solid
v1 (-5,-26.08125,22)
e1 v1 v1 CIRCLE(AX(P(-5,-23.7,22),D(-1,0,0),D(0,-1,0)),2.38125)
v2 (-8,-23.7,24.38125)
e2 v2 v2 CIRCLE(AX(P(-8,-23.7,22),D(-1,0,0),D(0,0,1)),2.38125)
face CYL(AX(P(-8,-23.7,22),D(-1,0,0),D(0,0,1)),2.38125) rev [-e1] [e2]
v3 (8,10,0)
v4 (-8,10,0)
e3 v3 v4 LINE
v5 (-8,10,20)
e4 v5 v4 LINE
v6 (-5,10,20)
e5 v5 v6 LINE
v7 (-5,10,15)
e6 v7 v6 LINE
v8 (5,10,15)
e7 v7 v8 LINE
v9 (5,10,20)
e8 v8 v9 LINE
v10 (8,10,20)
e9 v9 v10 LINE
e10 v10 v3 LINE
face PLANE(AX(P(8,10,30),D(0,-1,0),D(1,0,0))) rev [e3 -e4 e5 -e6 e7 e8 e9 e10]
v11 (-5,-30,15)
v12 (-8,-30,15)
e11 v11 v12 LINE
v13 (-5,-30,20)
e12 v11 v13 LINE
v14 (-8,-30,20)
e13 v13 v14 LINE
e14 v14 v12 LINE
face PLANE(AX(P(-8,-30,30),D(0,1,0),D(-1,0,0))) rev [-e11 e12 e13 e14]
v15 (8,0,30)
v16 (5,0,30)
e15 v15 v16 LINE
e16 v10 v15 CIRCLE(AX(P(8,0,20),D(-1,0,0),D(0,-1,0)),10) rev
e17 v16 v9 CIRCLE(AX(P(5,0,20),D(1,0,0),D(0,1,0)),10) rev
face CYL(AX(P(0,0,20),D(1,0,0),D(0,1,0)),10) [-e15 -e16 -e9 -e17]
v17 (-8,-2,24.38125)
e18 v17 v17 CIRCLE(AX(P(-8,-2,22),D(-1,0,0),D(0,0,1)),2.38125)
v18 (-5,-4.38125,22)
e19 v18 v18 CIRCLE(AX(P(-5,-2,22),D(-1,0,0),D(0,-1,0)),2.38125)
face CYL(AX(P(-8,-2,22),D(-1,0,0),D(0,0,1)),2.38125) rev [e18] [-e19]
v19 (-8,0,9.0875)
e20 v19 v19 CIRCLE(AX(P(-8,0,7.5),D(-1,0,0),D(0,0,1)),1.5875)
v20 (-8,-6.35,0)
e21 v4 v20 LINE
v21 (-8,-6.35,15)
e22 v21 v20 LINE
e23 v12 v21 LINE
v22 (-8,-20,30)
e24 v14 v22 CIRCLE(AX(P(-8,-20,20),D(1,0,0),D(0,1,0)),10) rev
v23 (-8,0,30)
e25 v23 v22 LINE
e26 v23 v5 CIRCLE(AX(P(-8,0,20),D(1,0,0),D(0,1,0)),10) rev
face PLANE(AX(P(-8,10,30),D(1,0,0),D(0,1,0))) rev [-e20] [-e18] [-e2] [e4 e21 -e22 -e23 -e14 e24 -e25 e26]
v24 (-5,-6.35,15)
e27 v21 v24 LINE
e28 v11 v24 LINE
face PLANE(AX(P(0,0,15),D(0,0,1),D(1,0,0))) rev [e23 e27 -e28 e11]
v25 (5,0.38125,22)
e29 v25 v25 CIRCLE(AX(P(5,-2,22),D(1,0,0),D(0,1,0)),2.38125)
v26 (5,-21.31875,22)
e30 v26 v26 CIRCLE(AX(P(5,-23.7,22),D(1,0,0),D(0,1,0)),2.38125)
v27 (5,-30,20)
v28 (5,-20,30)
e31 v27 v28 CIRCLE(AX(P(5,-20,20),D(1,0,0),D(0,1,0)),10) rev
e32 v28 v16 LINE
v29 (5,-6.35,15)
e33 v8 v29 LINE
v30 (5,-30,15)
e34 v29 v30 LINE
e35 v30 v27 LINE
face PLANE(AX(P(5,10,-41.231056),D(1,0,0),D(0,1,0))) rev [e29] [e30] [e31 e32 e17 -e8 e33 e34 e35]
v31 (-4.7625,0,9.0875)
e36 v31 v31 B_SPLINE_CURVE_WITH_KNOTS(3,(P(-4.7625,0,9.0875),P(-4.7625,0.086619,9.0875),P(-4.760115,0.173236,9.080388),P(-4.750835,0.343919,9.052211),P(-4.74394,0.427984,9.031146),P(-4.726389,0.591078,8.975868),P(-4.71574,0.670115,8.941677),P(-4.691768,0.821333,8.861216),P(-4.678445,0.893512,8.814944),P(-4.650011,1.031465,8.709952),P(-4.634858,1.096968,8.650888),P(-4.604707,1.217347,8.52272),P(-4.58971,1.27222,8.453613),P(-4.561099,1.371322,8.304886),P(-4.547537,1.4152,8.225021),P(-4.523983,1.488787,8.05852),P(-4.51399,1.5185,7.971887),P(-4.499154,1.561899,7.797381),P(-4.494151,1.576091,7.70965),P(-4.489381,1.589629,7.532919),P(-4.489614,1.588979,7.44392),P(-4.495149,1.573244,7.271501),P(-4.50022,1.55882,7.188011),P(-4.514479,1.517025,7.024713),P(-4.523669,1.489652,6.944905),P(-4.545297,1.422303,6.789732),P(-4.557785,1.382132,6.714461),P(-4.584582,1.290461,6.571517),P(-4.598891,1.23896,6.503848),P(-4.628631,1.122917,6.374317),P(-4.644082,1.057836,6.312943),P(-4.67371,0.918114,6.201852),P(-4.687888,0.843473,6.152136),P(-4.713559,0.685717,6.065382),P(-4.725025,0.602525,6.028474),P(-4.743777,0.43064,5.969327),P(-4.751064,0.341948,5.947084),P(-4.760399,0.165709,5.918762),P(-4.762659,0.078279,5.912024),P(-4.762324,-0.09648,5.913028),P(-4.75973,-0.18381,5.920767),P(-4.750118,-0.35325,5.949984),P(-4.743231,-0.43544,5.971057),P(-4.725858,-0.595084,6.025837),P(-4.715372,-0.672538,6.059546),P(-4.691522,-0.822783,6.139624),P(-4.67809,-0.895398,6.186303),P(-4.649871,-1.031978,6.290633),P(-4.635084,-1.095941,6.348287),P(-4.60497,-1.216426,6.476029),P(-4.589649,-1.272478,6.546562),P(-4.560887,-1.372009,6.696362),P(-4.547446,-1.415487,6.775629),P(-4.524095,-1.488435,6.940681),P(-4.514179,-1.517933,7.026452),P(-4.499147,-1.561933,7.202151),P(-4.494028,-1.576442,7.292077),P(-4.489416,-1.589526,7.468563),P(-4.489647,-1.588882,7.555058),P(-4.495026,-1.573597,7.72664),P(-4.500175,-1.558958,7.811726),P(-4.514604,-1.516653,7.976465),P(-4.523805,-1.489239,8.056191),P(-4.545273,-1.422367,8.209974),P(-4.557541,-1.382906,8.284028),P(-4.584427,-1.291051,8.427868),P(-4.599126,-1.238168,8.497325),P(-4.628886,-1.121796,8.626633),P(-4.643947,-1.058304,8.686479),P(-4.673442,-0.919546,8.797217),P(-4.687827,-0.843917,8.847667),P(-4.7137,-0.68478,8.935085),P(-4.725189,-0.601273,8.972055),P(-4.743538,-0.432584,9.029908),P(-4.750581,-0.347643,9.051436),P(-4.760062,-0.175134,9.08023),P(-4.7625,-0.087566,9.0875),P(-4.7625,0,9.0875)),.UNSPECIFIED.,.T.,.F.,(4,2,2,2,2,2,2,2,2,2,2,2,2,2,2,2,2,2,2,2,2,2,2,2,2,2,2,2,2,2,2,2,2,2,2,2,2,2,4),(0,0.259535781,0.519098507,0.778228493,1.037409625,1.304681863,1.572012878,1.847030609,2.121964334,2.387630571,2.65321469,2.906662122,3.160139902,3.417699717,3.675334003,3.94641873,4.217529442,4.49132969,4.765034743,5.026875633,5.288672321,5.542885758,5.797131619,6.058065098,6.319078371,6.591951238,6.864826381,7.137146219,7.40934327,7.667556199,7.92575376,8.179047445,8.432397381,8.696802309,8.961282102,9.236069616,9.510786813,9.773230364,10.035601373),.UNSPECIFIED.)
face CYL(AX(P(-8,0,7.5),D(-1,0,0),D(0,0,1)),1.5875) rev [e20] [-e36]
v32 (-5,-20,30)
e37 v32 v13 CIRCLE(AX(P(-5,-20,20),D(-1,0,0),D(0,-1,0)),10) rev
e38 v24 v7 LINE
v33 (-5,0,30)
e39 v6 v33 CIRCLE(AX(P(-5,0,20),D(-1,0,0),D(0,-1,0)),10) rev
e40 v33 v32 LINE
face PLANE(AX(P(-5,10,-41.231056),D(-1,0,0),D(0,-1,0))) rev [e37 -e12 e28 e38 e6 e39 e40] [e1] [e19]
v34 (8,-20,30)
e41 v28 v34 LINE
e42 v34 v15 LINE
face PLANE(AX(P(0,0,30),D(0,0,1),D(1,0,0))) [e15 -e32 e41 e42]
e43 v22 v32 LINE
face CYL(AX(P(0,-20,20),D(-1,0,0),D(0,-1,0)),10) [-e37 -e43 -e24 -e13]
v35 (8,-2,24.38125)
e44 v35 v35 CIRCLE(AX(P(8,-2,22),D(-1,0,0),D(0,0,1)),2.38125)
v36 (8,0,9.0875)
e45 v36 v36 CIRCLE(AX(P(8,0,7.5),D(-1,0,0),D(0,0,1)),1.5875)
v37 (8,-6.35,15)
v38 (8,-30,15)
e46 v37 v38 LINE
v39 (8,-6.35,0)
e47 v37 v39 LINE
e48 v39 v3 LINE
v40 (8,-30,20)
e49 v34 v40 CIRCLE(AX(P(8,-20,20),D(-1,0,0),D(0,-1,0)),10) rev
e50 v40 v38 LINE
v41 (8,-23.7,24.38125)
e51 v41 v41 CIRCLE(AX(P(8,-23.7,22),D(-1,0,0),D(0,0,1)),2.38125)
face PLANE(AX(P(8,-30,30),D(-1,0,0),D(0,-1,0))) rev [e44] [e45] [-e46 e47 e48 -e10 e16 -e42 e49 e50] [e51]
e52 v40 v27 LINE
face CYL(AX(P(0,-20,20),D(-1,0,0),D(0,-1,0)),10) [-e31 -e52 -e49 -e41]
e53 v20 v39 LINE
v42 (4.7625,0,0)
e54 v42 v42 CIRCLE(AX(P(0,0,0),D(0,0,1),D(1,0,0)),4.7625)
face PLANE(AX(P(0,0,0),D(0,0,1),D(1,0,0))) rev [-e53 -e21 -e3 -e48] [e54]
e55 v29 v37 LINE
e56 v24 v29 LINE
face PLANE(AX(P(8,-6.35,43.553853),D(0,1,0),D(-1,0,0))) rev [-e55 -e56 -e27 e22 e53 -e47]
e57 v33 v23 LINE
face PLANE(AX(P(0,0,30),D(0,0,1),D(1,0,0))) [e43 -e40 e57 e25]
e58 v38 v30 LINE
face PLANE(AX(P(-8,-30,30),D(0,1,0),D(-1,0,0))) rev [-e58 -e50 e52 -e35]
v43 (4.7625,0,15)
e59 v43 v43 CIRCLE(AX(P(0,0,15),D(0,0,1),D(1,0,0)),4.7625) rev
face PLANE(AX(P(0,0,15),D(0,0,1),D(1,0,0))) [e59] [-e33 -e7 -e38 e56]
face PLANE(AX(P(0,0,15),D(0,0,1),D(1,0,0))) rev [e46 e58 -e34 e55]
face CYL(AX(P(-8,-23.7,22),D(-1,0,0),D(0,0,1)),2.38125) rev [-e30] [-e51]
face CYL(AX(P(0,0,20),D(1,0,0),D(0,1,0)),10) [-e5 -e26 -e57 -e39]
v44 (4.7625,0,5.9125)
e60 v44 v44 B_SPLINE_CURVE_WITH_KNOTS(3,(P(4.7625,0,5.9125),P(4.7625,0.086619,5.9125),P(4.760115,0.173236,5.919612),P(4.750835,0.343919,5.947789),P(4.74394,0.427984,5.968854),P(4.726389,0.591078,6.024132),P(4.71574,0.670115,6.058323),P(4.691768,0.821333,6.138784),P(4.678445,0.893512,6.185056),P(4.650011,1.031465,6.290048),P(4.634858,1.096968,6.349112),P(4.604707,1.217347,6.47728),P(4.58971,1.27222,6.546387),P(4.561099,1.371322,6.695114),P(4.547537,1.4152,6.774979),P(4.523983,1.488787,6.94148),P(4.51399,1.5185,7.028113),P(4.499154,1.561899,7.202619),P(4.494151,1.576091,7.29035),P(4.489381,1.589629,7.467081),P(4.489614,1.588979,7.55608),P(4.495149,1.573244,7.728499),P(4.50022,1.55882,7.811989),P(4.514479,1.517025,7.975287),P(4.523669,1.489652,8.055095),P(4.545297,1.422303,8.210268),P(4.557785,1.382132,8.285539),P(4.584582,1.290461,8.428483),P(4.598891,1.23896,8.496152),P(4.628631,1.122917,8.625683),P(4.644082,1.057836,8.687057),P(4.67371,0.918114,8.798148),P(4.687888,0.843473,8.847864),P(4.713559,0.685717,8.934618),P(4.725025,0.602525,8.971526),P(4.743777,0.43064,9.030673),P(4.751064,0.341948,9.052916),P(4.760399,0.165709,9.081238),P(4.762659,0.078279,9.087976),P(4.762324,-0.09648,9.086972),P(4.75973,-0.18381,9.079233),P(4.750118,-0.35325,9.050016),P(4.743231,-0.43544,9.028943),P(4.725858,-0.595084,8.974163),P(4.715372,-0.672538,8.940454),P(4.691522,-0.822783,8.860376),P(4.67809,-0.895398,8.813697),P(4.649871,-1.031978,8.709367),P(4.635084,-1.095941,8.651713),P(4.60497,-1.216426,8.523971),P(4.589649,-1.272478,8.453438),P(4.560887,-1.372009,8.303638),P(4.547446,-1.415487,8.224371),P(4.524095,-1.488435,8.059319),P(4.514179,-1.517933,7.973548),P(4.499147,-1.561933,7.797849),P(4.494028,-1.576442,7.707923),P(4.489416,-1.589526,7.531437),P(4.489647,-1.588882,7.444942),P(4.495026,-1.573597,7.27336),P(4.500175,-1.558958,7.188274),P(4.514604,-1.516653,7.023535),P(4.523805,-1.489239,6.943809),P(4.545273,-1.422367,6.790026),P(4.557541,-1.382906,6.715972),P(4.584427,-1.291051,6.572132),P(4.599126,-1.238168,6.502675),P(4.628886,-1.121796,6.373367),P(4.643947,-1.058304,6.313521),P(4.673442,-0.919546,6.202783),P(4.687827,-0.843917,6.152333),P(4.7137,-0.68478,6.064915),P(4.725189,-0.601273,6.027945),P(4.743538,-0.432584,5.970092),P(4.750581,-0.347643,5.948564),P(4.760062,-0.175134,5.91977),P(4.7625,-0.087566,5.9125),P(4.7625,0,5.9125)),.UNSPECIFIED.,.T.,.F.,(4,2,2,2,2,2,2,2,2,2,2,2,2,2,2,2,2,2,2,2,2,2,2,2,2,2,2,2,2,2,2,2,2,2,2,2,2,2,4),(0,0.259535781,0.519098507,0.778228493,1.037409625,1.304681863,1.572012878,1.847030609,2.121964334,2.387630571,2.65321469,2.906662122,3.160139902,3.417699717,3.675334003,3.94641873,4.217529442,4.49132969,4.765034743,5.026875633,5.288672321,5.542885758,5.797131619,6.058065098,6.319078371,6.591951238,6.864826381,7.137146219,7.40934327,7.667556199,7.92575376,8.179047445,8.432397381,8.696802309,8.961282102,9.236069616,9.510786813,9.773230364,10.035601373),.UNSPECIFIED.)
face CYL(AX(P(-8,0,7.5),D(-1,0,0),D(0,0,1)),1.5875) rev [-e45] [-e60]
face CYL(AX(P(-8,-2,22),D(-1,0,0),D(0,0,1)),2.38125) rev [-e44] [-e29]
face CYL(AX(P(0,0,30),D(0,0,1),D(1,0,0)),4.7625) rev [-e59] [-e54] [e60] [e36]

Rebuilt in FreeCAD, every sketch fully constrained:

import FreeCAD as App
import Part
import Sketcher

V = App.Vector


def edges_at(feature, points):
    """Names of the edges that pass closest to the given points."""
    edges = feature.Shape.Edges
    near = lambda p: min(range(len(edges)), key=lambda i: edges[i].distToShape(Part.Vertex(*p))[0])
    return sorted({f"Edge{near(p) + 1}" for p in points})


def add_polygon(sketch, points):
    """Adds a closed chain of lines whose ends are joined by coincident constraints."""
    first, n = sketch.GeometryCount, len(points)
    for a, b in zip(points, points[1:] + points[:1]):
        sketch.addGeometry(Part.LineSegment(App.Vector(*a, 0), App.Vector(*b, 0)), False)
    for i in range(n):
        sketch.addConstraint(Sketcher.Constraint("Coincident", first + i, 2, first + (i + 1) % n, 1))

doc = App.newDocument("Part")
body = doc.addObject("PartDesign::Body", "Body")

# Sketch on XY plane
sketch1 = body.newObject("Sketcher::SketchObject", "Sketch")
sketch1.AttachmentSupport = (doc.getObject("XY_Plane"), [""])
sketch1.MapMode = "FlatFace"
add_polygon(sketch1, [(-8, 10), (-8, -30), (8, -30), (8, 10)])  # lines 0-3
sketch1.addConstraint(Sketcher.Constraint("Vertical", 0))
sketch1.addConstraint(Sketcher.Constraint("Horizontal", 1))
sketch1.addConstraint(Sketcher.Constraint("Vertical", 2))
sketch1.addConstraint(Sketcher.Constraint("Horizontal", 3))
sketch1.addConstraint(Sketcher.Constraint("DistanceX", 1, 1, 1, 2, 16.0))
sketch1.addConstraint(Sketcher.Constraint("DistanceY", 0, 2, 0, 1, 40.0))
sketch1.addConstraint(Sketcher.Constraint("DistanceX", 0, 2, -1, 1, 8.0))
sketch1.addConstraint(Sketcher.Constraint("DistanceY", 0, 2, -1, 1, 30.0))
pad1 = body.newObject("PartDesign::Pad", "Pad")
pad1.Profile = sketch1
pad1.Length = 30

# Sketch on XY plane
sketch2 = body.newObject("Sketcher::SketchObject", "Sketch001")
sketch2.AttachmentSupport = (doc.getObject("XY_Plane"), [""])
sketch2.MapMode = "FlatFace"
sketch2.AttachmentOffset = App.Placement(V(0, 0, 30), App.Rotation())
sketch2.addGeometry(Part.Circle(V(0, 0, 0), V(0, 0, 1), 4.8), False)
sketch2.addConstraint(Sketcher.Constraint("Coincident", 0, 3, -1, 1))
sketch2.addConstraint(Sketcher.Constraint("Diameter", 0, 9.525))
doc.recompute()
hole = body.newObject("PartDesign::Hole", "Hole")
hole.Profile = sketch2
hole.ThreadType = "None"
hole.Diameter = 9.525
hole.DepthType = "ThroughAll"

# Sketch on YZ plane
sketch3 = body.newObject("Sketcher::SketchObject", "Sketch002")
sketch3.AttachmentSupport = (doc.getObject("YZ_Plane"), [""])
sketch3.MapMode = "FlatFace"
sketch3.AttachmentOffset = App.Placement(V(0, 0, -8), App.Rotation())
sketch3.addGeometry(Part.Circle(V(0, 7.5, 0), V(0, 0, 1), 1.6), False)
sketch3.addConstraint(Sketcher.Constraint("PointOnObject", 0, 3, -2))
sketch3.addConstraint(Sketcher.Constraint("Diameter", 0, 3.175))
sketch3.addConstraint(Sketcher.Constraint("DistanceY", -1, 1, 0, 3, 7.5))
doc.recompute()
hole2 = body.newObject("PartDesign::Hole", "Hole001")
hole2.Profile = sketch3
hole2.ThreadType = "None"
hole2.Diameter = 3.175
hole2.DepthType = "ThroughAll"
hole2.Reversed = True

# Sketch on XY plane
sketch4 = body.newObject("Sketcher::SketchObject", "Sketch003")
sketch4.AttachmentSupport = (doc.getObject("XY_Plane"), [""])
sketch4.MapMode = "FlatFace"
sketch4.AttachmentOffset = App.Placement(V(0, 0, 30), App.Rotation())
add_polygon(sketch4, [(-5, 10), (-5, -30), (5, -30), (5, 10)])  # lines 0-3
sketch4.addConstraint(Sketcher.Constraint("Vertical", 0))
sketch4.addConstraint(Sketcher.Constraint("Horizontal", 1))
sketch4.addConstraint(Sketcher.Constraint("Vertical", 2))
sketch4.addConstraint(Sketcher.Constraint("Horizontal", 3))
sketch4.addConstraint(Sketcher.Constraint("DistanceX", 1, 1, 1, 2, 10.0))
sketch4.addConstraint(Sketcher.Constraint("DistanceY", 0, 2, 0, 1, 40.0))
sketch4.addConstraint(Sketcher.Constraint("DistanceX", 0, 2, -1, 1, 5.0))
sketch4.addConstraint(Sketcher.Constraint("DistanceY", 0, 2, -1, 1, 30.0))
pocket1 = body.newObject("PartDesign::Pocket", "Pocket")
pocket1.Profile = sketch4
pocket1.Length = 15

# Sketch on YZ plane
sketch5 = body.newObject("Sketcher::SketchObject", "Sketch004")
sketch5.AttachmentSupport = (doc.getObject("YZ_Plane"), [""])
sketch5.MapMode = "FlatFace"
sketch5.AttachmentOffset = App.Placement(V(0, 0, -8), App.Rotation())
sketch5.addGeometry(Part.Circle(V(-2, 22, 0), V(0, 0, 1), 2.4), False)
sketch5.addGeometry(Part.Circle(V(-23.7, 22, 0), V(0, 0, 1), 2.4), False)
sketch5.addConstraint(Sketcher.Constraint("Equal", 0, 1))
sketch5.addConstraint(Sketcher.Constraint("Horizontal", 0, 3, 1, 3))
sketch5.addConstraint(Sketcher.Constraint("DistanceX", 0, 3, -1, 1, 2.0))
sketch5.addConstraint(Sketcher.Constraint("DistanceY", -1, 1, 0, 3, 22.0))
sketch5.addConstraint(Sketcher.Constraint("Diameter", 0, 4.7625))
sketch5.addConstraint(Sketcher.Constraint("DistanceX", 1, 3, -1, 1, 23.7))
doc.recompute()
hole3 = body.newObject("PartDesign::Hole", "Hole002")
hole3.Profile = sketch5
hole3.ThreadType = "None"
hole3.Diameter = 4.7625
hole3.DepthType = "ThroughAll"
hole3.Reversed = True

# Sketch on XY plane
sketch6 = body.newObject("Sketcher::SketchObject", "Sketch005")
sketch6.AttachmentSupport = (doc.getObject("XY_Plane"), [""])
sketch6.MapMode = "FlatFace"
add_polygon(sketch6, [(8, -6), (8, -30), (-8, -30), (-8, -6)])  # lines 0-3
sketch6.addConstraint(Sketcher.Constraint("Vertical", 0))
sketch6.addConstraint(Sketcher.Constraint("Horizontal", 1))
sketch6.addConstraint(Sketcher.Constraint("Vertical", 2))
sketch6.addConstraint(Sketcher.Constraint("Horizontal", 3))
sketch6.addConstraint(Sketcher.Constraint("DistanceX", 1, 2, 1, 1, 16.0))
sketch6.addConstraint(Sketcher.Constraint("DistanceX", -1, 1, 0, 2, 8.0))
sketch6.addConstraint(Sketcher.Constraint("DistanceY", 0, 2, -1, 1, 30.0))
sketch6.addConstraint(Sketcher.Constraint("DistanceY", 0, 2, 0, 1, 23.65))
pocket2 = body.newObject("PartDesign::Pocket", "Pocket001")
pocket2.Profile = sketch6
pocket2.Length = 15
pocket2.Reversed = True
doc.recompute()

fillet = body.newObject("PartDesign::Fillet", "Fillet")
fillet.Base = (pocket2, edges_at(pocket2, [
    (6.5, 10, 30),
    (6.5, -30, 30),
    (-6.5, 10, 30),
    (-6.5, -30, 30),
]))
fillet.Radius = 10

doc.recompute()
